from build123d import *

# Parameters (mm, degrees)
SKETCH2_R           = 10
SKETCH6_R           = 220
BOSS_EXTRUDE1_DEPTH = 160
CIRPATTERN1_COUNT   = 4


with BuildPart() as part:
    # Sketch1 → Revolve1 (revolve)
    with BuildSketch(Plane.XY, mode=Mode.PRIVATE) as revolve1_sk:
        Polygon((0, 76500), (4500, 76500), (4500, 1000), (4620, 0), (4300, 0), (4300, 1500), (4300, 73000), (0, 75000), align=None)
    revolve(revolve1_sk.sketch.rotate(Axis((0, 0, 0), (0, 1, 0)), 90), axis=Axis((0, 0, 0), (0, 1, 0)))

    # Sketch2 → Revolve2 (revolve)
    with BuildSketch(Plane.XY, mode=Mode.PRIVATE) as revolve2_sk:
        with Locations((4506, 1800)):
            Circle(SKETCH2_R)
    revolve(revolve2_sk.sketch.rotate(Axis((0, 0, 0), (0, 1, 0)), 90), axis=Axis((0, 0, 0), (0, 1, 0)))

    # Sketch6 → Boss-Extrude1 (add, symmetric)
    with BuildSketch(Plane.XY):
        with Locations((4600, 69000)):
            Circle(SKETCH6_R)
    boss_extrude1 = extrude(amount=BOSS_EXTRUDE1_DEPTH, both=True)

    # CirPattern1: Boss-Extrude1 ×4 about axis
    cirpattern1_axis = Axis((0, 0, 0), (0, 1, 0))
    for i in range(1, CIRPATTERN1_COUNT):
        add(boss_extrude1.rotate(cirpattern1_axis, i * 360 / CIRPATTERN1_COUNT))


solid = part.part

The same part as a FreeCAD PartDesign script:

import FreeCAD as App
import Part
import Sketcher

doc = App.newDocument("Part")
body = doc.addObject("PartDesign::Body", "Body")

# Sketch on XY plane
sketch1 = body.newObject("Sketcher::SketchObject", "Sketch")
sketch1.AttachmentSupport = (doc.getObject("XY_Plane"), [""])
sketch1.MapMode = "FlatFace"
sketch1.addGeometry(Part.LineSegment(App.Vector(4500, 76500, 0), App.Vector(0, 76500, 0)), False)
sketch1.addGeometry(Part.LineSegment(App.Vector(0, 76500, 0), App.Vector(0, 75000, 0)), False)
sketch1.addGeometry(Part.LineSegment(App.Vector(0, 75000, 0), App.Vector(4300, 73000, 0)), False)
sketch1.addGeometry(Part.LineSegment(App.Vector(4300, 73000, 0), App.Vector(4300, 0, 0)), False)
sketch1.addGeometry(Part.LineSegment(App.Vector(4300, 0, 0), App.Vector(4620, 0, 0)), False)
sketch1.addGeometry(Part.LineSegment(App.Vector(4620, 0, 0), App.Vector(4500, 1000, 0)), False)
sketch1.addGeometry(Part.LineSegment(App.Vector(4500, 1000, 0), App.Vector(4500, 76500, 0)), False)
sketch1.addConstraint(Sketcher.Constraint("Coincident", 0, 2, 1, 1))
sketch1.addConstraint(Sketcher.Constraint("Coincident", 1, 2, 2, 1))
sketch1.addConstraint(Sketcher.Constraint("Coincident", 2, 2, 3, 1))
sketch1.addConstraint(Sketcher.Constraint("Coincident", 3, 2, 4, 1))
sketch1.addConstraint(Sketcher.Constraint("Coincident", 4, 2, 5, 1))
sketch1.addConstraint(Sketcher.Constraint("Coincident", 5, 2, 6, 1))
sketch1.addConstraint(Sketcher.Constraint("Coincident", 6, 2, 0, 1))
sketch1.addConstraint(Sketcher.Constraint("Horizontal", 0))
sketch1.addConstraint(Sketcher.Constraint("Vertical", 1))
sketch1.addConstraint(Sketcher.Constraint("Vertical", 3))
sketch1.addConstraint(Sketcher.Constraint("Horizontal", 4))
sketch1.addConstraint(Sketcher.Constraint("Vertical", 6))
sketch1.addConstraint(Sketcher.Constraint("PointOnObject", 0, 2, -2))
sketch1.addConstraint(Sketcher.Constraint("PointOnObject", 3, 2, -1))
sketch1.addConstraint(Sketcher.Constraint("DistanceX", 0, 2, 0, 1, 4500.0))
sketch1.addConstraint(Sketcher.Constraint("DistanceX", 4, 1, 4, 2, 320.0))
sketch1.addConstraint(Sketcher.Constraint("DistanceY", 1, 2, 1, 1, 1500.0))
sketch1.addConstraint(Sketcher.Constraint("DistanceY", 3, 2, 3, 1, 73000.0))
sketch1.addConstraint(Sketcher.Constraint("DistanceY", 6, 1, 6, 2, 75500.0))
sketch1.addConstraint(Sketcher.Constraint("DistanceY", -1, 1, 0, 2, 76500.0))
sketch1.addConstraint(Sketcher.Constraint("DistanceX", -1, 1, 2, 2, 4300.0))
revolution = body.newObject("PartDesign::Revolution", "Revolution")
revolution.Profile = sketch1
revolution.ReferenceAxis = (sketch1, ["V_Axis"])
revolution.Angle = 360

# Sketch on XY plane
sketch2 = body.newObject("Sketcher::SketchObject", "Sketch001")
sketch2.AttachmentSupport = (doc.getObject("XY_Plane"), [""])
sketch2.MapMode = "FlatFace"
sketch2.addGeometry(Part.Circle(App.Vector(4506, 1800, 0), App.Vector(0, 0, 1), 10), False)
sketch2.addConstraint(Sketcher.Constraint("Diameter", 0, 20.0))
sketch2.addConstraint(Sketcher.Constraint("DistanceX", -1, 1, 0, 3, 4506.0))
sketch2.addConstraint(Sketcher.Constraint("DistanceY", -1, 1, 0, 3, 1800.0))
revolution2 = body.newObject("PartDesign::Revolution", "Revolution001")
revolution2.Profile = sketch2
revolution2.ReferenceAxis = (sketch2, ["V_Axis"])
revolution2.Angle = 360

# Sketch on XY plane
sketch3 = body.newObject("Sketcher::SketchObject", "Sketch002")
sketch3.AttachmentSupport = (doc.getObject("XY_Plane"), [""])
sketch3.MapMode = "FlatFace"
sketch3.addGeometry(Part.Circle(App.Vector(4600, 69000, 0), App.Vector(0, 0, 1), 220), False)
sketch3.addConstraint(Sketcher.Constraint("Diameter", 0, 440.0))
sketch3.addConstraint(Sketcher.Constraint("DistanceX", -1, 1, 0, 3, 4600.0))
sketch3.addConstraint(Sketcher.Constraint("DistanceY", -1, 1, 0, 3, 69000.0))
pad1 = body.newObject("PartDesign::Pad", "Pad")
pad1.Profile = sketch3
pad1.Length = 320
pad1.Midplane = True
doc.recompute()

polarpattern = body.newObject("PartDesign::PolarPattern", "PolarPattern")
polarpattern.Originals = [pad1]
polarpattern.Axis = (doc.getObject("Y_Axis"), [""])
polarpattern.Angle = 360
polarpattern.Occurrences = 4
body.Tip = polarpattern

doc.recompute()
